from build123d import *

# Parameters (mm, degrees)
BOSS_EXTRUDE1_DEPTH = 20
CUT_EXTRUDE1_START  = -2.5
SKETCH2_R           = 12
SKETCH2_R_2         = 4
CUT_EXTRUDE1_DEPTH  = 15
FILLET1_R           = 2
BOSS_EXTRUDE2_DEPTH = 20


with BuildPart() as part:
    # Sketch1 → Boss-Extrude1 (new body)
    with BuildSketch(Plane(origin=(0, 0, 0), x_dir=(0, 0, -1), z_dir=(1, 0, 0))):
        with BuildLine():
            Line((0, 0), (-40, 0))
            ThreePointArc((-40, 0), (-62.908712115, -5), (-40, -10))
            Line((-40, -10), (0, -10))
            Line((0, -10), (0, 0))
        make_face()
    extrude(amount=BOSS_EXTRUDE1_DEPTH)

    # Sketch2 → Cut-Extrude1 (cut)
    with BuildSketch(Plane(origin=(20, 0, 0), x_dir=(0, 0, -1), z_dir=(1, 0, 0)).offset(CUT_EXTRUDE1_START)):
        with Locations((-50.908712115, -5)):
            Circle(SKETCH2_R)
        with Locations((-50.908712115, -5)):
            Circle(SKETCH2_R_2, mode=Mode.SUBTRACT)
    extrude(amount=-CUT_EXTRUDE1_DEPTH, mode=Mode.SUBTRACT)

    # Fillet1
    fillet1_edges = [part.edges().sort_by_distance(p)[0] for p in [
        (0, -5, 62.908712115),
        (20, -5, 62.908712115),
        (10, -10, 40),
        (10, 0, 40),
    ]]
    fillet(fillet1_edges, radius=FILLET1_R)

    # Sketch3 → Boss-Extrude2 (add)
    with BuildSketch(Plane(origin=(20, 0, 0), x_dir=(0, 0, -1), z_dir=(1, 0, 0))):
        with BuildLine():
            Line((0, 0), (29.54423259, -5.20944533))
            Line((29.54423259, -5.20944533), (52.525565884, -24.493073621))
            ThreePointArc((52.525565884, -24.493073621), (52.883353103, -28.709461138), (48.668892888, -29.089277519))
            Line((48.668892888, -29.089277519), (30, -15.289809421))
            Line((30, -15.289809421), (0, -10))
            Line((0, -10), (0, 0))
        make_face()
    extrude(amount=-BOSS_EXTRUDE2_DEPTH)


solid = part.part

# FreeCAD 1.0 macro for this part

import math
import FreeCAD as App
import Part
import Sketcher

V = App.Vector
Q = App.Units.Quantity


def edges_at(feature, points):
    """Names of the edges that pass closest to the given points."""
    edges = feature.Shape.Edges
    near = lambda p: min(range(len(edges)), key=lambda i: edges[i].distToShape(Part.Vertex(*p))[0])
    return sorted({f"Edge{near(p) + 1}" for p in points})

doc = App.newDocument("Part")
params = doc.addObject("Spreadsheet::Sheet", "Params")
for row, (alias, value) in enumerate([
    ("sketch1_radius", "12 mm"),
    ("sketch1_width", "10 mm"),
    ("sketch1_height", "40 mm"),
    ("pad1_length", "20 mm"),
    ("sketch2_diameter", "24 mm"),
    ("sketch2_diameter2", "8 mm"),
    ("pocket1_length", "15 mm"),
    ("fillet_radius", "2 mm"),
    ("sketch3_radius", "3 mm"),
    ("sketch3_width", "10 mm"),
    ("sketch3_length", "30 mm"),
    ("pad2_length", "20 mm"),
], start=1):
    params.set(f"A{row}", alias)
    params.set(f"B{row}", "=" + value)
    params.setAlias(f"B{row}", alias)

body = doc.addObject("PartDesign::Body", "Body")

# Sketch on YZ plane
sketch1 = body.newObject("Sketcher::SketchObject", "Sketch")
sketch1.AttachmentSupport = (doc.getObject("YZ_Plane"), [""])
sketch1.MapMode = "FlatFace"
sketch1.addGeometry([
    Part.LineSegment(V(0, 0, 0), V(0, 40, 0)),
    Part.ArcOfCircle(Part.Circle(V(-5, 50.908712, 0), V(0, 0, 1), 12), math.radians(-65.375682), math.radians(245.375682)),
    Part.LineSegment(V(-10, 40, 0), V(-10, 0, 0)),
    Part.LineSegment(V(-10, 0, 0), V(0, 0, 0)),
], False)
sketch1.addConstraint([
    Sketcher.Constraint("Coincident", 0, 2, 1, 1),
    Sketcher.Constraint("Coincident", 1, 2, 2, 1),
    Sketcher.Constraint("Coincident", 2, 2, 3, 1),
    Sketcher.Constraint("Coincident", 3, 2, 0, 1),
    Sketcher.Constraint("Vertical", 0),
    Sketcher.Constraint("Vertical", 2),
    Sketcher.Constraint("Horizontal", 3),
    Sketcher.Constraint("Coincident", 3, 2, -1, 1),
    Sketcher.Constraint("Horizontal", 0, 2, 1, 2),
    Sketcher.Constraint("Radius", 1, Q("12 mm")),
    Sketcher.Constraint("DistanceX", 3, 1, 3, 2, Q("10 mm")),
    Sketcher.Constraint("DistanceY", 0, 1, 0, 2, Q("40 mm")),
])
sketch1.setExpression("Constraints[9]", "Params.sketch1_radius")
sketch1.setExpression("Constraints[10]", "Params.sketch1_width")
sketch1.setExpression("Constraints[11]", "Params.sketch1_height")
pad1 = body.newObject("PartDesign::Pad", "Pad")
pad1.Profile = sketch1
pad1.setExpression("Length", "Params.pad1_length")

# Sketch on YZ plane
sketch2 = body.newObject("Sketcher::SketchObject", "Sketch001")
sketch2.AttachmentSupport = (doc.getObject("YZ_Plane"), [""])
sketch2.MapMode = "FlatFace"
sketch2.AttachmentOffset = App.Placement(V(0, 0, 17.5), App.Rotation())
sketch2.addGeometry([
    Part.Circle(V(-5, 50.908712, 0), V(0, 0, 1), 12),
    Part.Circle(V(-5, 50.908712, 0), V(0, 0, 1), 4),
], False)
sketch2.addConstraint([
    Sketcher.Constraint("Coincident", 1, 3, 0, 3),
    Sketcher.Constraint("Diameter", 0, Q("24 mm")),
    Sketcher.Constraint("Diameter", 1, Q("8 mm")),
    Sketcher.Constraint("DistanceX", 0, 3, -1, 1, Q("5 mm")),
    Sketcher.Constraint("DistanceY", -1, 1, 0, 3, Q("50.908712 mm")),
])
sketch2.setExpression("Constraints[1]", "Params.sketch2_diameter")
sketch2.setExpression("Constraints[2]", "Params.sketch2_diameter2")
pocket1 = body.newObject("PartDesign::Pocket", "Pocket")
pocket1.Profile = sketch2
pocket1.setExpression("Length", "Params.pocket1_length")
doc.recompute()

fillet = body.newObject("PartDesign::Fillet", "Fillet")
fillet.Base = (pocket1, edges_at(pocket1, [
    (0, -5, 62.909),
    (20, -5, 62.909),
    (10, -10, 40),
    (10, 0, 40),
]))
fillet.setExpression("Radius", "Params.fillet_radius")

# Sketch on YZ plane
sketch3 = body.newObject("Sketcher::SketchObject", "Sketch002")
sketch3.AttachmentSupport = (doc.getObject("YZ_Plane"), [""])
sketch3.MapMode = "FlatFace"
sketch3.AttachmentOffset = App.Placement(V(0, 0, 20), App.Rotation())
sketch3.addGeometry([
    Part.LineSegment(V(-5.209445, -29.544233, 0), V(0, 0, 0)),  # 0
    Part.LineSegment(V(0, 0, 0), V(-10, 0, 0)),  # 1
    Part.LineSegment(V(-10, 0, 0), V(-15.289809, -30, 0)),  # 2
    Part.LineSegment(V(-15.289809, -30, 0), V(-29.089278, -48.668893, 0)),  # 3
    Part.ArcOfCircle(Part.Circle(V(-26.781098, -50.58522, 0), V(0, 0, 1), 3), math.radians(140.299418), math.radians(319.700582)),  # 4
    Part.LineSegment(V(-24.493074, -52.525566, 0), V(-5.209445, -29.544233, 0)),  # 5
], False)
sketch3.addConstraint([
    Sketcher.Constraint("Coincident", 0, 2, 1, 1),
    Sketcher.Constraint("Coincident", 1, 2, 2, 1),
    Sketcher.Constraint("Coincident", 2, 2, 3, 1),
    Sketcher.Constraint("Coincident", 3, 2, 4, 1),
    Sketcher.Constraint("Coincident", 4, 2, 5, 1),
    Sketcher.Constraint("Coincident", 5, 2, 0, 1),
    Sketcher.Constraint("Horizontal", 1),
    Sketcher.Constraint("Coincident", 0, 2, -1, 1),
    Sketcher.Constraint("Parallel", 0, 2),
    Sketcher.Constraint("Equal", 0, 5),
    Sketcher.Constraint("Radius", 4, Q("3 mm")),
    Sketcher.Constraint("DistanceX", 1, 2, 1, 1, Q("10 mm")),
    Sketcher.Constraint("Angle", 0, Q("80 deg")),
    Sketcher.Constraint("Angle", 5, Q("50 deg")),
    Sketcher.Constraint("Distance", 0, Q("30 mm")),
    Sketcher.Constraint("DistanceY", 2, 2, -1, 1, Q("30 mm")),
    Sketcher.Constraint("DistanceX", 4, 3, -1, 1, Q("26.781098 mm")),
    Sketcher.Constraint("Distance", 3, Q("23.215359 mm")),
])
sketch3.setExpression("Constraints[10]", "Params.sketch3_radius")
sketch3.setExpression("Constraints[11]", "Params.sketch3_width")
sketch3.setExpression("Constraints[14]", "Params.sketch3_length")
pad2 = body.newObject("PartDesign::Pad", "Pad001")
pad2.Profile = sketch3
pad2.setExpression("Length", "Params.pad2_length")
pad2.Reversed = True

doc.recompute()
